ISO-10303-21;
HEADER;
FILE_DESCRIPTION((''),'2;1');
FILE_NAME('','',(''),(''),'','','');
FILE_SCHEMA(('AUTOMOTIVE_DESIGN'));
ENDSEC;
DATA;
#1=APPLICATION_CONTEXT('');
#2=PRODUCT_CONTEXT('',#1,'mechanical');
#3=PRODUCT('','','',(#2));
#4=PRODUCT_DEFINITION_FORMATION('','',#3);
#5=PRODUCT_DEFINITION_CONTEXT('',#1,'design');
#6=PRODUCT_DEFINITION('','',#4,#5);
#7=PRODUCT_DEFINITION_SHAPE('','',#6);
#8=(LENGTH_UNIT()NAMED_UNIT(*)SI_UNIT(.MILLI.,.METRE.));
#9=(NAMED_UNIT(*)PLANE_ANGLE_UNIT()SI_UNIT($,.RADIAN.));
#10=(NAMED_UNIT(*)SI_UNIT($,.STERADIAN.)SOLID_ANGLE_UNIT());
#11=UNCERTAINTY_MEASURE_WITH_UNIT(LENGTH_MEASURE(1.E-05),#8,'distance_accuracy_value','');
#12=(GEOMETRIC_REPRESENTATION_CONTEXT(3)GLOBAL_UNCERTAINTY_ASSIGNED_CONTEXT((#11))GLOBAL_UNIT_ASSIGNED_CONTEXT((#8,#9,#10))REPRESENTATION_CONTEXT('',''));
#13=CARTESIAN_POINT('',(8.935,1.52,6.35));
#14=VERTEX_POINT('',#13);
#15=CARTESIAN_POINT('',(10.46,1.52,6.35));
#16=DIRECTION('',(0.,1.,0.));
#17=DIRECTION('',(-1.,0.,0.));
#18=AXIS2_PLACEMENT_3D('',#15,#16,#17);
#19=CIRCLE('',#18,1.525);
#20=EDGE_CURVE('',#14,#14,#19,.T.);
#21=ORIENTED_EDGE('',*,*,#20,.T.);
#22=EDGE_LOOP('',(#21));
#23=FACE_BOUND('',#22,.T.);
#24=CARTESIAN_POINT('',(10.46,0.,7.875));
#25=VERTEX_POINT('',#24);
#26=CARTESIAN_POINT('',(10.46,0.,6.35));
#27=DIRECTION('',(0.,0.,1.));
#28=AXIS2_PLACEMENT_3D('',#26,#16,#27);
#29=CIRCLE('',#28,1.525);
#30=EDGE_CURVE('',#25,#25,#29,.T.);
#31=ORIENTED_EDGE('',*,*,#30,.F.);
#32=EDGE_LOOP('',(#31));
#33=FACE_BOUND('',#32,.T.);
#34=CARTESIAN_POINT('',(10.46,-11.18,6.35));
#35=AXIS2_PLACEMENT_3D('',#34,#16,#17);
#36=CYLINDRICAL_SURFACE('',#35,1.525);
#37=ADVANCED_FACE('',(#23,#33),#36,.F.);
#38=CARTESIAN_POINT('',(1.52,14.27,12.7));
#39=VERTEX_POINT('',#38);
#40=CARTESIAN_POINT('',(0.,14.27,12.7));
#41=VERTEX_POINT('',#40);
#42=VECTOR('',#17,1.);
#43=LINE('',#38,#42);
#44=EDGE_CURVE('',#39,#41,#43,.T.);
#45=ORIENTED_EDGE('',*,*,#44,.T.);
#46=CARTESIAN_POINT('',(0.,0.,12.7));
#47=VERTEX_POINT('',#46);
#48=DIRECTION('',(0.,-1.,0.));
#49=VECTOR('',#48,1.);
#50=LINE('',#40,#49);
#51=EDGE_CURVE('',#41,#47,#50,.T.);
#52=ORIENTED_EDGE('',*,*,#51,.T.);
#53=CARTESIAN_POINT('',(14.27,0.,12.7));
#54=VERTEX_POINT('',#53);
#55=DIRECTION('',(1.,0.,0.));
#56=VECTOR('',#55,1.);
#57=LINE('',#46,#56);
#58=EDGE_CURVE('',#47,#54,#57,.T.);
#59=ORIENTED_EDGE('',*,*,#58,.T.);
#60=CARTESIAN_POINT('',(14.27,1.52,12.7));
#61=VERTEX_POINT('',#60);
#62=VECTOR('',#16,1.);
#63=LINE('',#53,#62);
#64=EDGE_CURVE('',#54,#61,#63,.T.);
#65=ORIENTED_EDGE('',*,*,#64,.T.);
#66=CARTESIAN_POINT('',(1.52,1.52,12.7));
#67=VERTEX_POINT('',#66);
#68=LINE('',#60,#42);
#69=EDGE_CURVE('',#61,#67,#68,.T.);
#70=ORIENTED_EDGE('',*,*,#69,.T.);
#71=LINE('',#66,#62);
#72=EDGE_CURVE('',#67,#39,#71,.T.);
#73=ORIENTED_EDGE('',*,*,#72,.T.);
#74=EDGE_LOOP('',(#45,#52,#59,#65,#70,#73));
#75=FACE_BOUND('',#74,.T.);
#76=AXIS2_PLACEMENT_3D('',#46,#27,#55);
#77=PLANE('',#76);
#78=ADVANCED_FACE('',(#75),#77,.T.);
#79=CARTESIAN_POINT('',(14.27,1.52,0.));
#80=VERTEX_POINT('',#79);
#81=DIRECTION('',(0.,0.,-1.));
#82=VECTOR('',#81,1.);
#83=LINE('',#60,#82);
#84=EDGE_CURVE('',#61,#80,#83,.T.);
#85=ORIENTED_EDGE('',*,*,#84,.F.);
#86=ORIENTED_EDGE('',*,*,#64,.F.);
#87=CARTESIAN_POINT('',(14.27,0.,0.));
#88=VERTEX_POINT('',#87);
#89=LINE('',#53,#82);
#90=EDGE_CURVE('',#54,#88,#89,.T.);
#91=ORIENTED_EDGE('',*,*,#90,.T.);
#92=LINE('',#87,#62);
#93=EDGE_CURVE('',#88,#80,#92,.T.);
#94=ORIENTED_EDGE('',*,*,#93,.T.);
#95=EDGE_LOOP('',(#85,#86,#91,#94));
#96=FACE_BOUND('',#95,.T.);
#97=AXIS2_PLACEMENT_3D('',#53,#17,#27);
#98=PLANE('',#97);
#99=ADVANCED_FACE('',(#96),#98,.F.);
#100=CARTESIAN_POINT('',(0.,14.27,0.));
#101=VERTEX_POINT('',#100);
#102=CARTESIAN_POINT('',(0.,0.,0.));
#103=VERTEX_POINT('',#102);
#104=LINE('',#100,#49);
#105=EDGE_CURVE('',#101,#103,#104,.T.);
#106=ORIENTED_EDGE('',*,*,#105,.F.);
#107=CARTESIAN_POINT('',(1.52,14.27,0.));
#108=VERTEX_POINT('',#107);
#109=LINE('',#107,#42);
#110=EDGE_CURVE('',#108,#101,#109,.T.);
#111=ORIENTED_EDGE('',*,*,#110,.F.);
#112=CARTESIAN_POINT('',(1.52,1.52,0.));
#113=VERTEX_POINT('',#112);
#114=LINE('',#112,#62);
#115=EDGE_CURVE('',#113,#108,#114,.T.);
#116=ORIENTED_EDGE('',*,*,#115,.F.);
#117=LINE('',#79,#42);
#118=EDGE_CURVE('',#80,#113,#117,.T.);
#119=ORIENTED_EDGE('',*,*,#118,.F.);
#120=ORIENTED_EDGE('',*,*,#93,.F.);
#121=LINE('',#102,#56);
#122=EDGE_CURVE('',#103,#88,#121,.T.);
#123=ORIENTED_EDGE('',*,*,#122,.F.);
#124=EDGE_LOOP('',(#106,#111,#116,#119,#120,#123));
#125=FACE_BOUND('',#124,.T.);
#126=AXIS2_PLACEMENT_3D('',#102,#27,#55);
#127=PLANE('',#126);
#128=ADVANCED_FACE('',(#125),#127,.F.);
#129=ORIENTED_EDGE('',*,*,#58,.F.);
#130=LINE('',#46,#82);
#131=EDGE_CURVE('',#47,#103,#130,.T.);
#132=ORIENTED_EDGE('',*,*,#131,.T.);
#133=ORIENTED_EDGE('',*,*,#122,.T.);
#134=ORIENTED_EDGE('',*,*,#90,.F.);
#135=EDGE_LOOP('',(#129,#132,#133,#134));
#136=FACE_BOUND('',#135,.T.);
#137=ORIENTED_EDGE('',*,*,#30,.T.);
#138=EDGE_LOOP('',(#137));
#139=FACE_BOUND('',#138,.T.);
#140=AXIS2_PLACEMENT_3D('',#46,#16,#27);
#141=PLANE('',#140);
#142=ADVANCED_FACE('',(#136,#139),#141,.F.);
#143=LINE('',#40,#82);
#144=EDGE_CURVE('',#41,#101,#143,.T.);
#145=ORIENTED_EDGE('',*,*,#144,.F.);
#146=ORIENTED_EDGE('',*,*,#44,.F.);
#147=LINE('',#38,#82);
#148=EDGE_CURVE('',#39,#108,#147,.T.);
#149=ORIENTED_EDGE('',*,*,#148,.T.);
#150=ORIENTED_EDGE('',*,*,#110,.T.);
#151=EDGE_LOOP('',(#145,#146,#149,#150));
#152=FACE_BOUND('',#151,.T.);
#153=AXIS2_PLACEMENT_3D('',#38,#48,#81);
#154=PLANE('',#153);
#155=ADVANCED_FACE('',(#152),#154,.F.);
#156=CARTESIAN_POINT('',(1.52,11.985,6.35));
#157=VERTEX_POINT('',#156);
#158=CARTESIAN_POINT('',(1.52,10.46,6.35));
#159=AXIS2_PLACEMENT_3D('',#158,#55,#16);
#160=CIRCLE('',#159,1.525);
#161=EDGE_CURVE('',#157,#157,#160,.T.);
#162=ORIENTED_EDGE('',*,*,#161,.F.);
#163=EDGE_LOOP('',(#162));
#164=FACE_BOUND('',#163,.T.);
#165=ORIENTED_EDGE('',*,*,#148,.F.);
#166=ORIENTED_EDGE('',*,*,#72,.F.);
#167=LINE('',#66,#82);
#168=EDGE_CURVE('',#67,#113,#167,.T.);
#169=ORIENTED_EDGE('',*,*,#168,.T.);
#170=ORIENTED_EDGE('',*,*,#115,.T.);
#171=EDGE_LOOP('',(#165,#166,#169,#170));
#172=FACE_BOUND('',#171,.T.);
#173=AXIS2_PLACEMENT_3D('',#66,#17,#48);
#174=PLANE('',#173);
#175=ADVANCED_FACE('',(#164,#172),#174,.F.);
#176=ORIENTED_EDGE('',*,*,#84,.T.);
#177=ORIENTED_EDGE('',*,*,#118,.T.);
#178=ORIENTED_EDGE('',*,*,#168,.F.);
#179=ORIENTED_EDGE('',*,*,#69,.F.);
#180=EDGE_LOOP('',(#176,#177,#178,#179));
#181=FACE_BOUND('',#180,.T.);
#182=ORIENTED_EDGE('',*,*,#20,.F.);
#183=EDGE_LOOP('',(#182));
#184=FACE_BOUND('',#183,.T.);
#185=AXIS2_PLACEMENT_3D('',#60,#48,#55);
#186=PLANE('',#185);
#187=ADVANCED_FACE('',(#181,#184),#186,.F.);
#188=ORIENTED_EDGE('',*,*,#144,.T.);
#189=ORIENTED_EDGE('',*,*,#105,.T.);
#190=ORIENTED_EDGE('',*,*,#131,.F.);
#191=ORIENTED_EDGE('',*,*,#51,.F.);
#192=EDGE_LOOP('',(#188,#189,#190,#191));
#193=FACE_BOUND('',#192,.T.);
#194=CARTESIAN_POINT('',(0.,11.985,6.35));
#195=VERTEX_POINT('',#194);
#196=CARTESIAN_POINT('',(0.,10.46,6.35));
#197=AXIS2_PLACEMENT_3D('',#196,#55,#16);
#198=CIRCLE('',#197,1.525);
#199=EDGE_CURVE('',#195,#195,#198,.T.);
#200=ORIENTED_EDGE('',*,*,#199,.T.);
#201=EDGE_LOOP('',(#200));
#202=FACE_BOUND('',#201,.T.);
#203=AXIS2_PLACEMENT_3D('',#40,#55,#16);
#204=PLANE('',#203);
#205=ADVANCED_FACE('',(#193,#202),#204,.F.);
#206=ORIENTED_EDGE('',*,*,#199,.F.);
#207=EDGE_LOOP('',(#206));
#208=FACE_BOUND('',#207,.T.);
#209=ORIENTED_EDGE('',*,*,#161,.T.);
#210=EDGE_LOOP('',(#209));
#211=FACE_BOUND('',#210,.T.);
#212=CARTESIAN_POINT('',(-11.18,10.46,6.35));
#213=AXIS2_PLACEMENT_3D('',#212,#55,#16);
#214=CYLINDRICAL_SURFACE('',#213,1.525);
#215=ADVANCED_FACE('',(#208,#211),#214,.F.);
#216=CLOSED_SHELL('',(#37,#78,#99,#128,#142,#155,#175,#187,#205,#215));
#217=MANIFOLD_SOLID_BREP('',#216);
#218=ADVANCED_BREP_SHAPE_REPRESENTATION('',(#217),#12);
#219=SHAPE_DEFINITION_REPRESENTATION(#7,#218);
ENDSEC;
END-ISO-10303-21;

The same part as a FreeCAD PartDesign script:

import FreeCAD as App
import Part
import Sketcher
from FreeCAD import Vector
Q = App.Units.Quantity

doc = App.newDocument("Part")
body = doc.addObject("PartDesign::Body", "Body")

# Sketch on XY plane
sketch1 = body.newObject("Sketcher::SketchObject", "Sketch")
sketch1.AttachmentSupport = (doc.getObject("XY_Plane"), [""])
sketch1.MapMode = "FlatFace"
sketch1.addGeometry(Part.LineSegment(Vector(0, 0, 0), Vector(14.3, 0, 0)), False)
sketch1.addGeometry(Part.LineSegment(Vector(14.3, 0, 0), Vector(14.3, 1.5, 0)), False)
sketch1.addGeometry(Part.LineSegment(Vector(14.3, 1.5, 0), Vector(1.5, 1.5, 0)), False)
sketch1.addGeometry(Part.LineSegment(Vector(1.5, 1.5, 0), Vector(1.5, 14.3, 0)), False)
sketch1.addGeometry(Part.LineSegment(Vector(1.5, 14.3, 0), Vector(0, 14.3, 0)), False)
sketch1.addGeometry(Part.LineSegment(Vector(0, 14.3, 0), Vector(0, 0, 0)), False)
sketch1.addConstraint(Sketcher.Constraint("Coincident", 0, 2, 1, 1))
sketch1.addConstraint(Sketcher.Constraint("Coincident", 1, 2, 2, 1))
sketch1.addConstraint(Sketcher.Constraint("Coincident", 2, 2, 3, 1))
sketch1.addConstraint(Sketcher.Constraint("Coincident", 3, 2, 4, 1))
sketch1.addConstraint(Sketcher.Constraint("Coincident", 4, 2, 5, 1))
sketch1.addConstraint(Sketcher.Constraint("Coincident", 5, 2, 0, 1))
sketch1.addConstraint(Sketcher.Constraint("Horizontal", 0))
sketch1.addConstraint(Sketcher.Constraint("Vertical", 1))
sketch1.addConstraint(Sketcher.Constraint("Horizontal", 2))
sketch1.addConstraint(Sketcher.Constraint("Vertical", 3))
sketch1.addConstraint(Sketcher.Constraint("Horizontal", 4))
sketch1.addConstraint(Sketcher.Constraint("Vertical", 5))
sketch1.addConstraint(Sketcher.Constraint("Coincident", 5, 2, -1, 1))
sketch1.addConstraint(Sketcher.Constraint("Equal", 4, 1))
sketch1.addConstraint(Sketcher.Constraint("Equal", 2, 3))
sketch1.addConstraint(Sketcher.Constraint("DistanceX", 0, 1, 0, 2, 14.27))
sketch1.addConstraint(Sketcher.Constraint("DistanceX", 2, 2, 2, 1, 12.75))
pad1 = body.newObject("PartDesign::Pad", "Pad")
pad1.Profile = sketch1
pad1.Length = Q("0.5 in")

# Sketch on YZ plane
sketch2 = body.newObject("Sketcher::SketchObject", "Sketch001")
sketch2.AttachmentSupport = (doc.getObject("YZ_Plane"), [""])
sketch2.MapMode = "FlatFace"
sketch2.AttachmentOffset = App.Placement(Vector(0, 0, 1.52), App.Rotation())
sketch2.addGeometry(Part.Circle(Vector(10.5, 6.3, 0), Vector(0, 0, 1), 1.5), False)
sketch2.addConstraint(Sketcher.Constraint("Diameter", 0, 3.05))
sketch2.addConstraint(Sketcher.Constraint("DistanceY", -1, 1, 0, 3, Q("0.25 in")))
sketch2.addConstraint(Sketcher.Constraint("DistanceX", -1, 1, 0, 3, 10.46))
pocket1 = body.newObject("PartDesign::Pocket", "Pocket")
pocket1.Profile = sketch2
pocket1.Length = Q("0.5 in")

# Sketch on XZ plane
sketch3 = body.newObject("Sketcher::SketchObject", "Sketch002")
sketch3.AttachmentSupport = (doc.getObject("XZ_Plane"), [""])
sketch3.MapMode = "FlatFace"
sketch3.AttachmentOffset = App.Placement(Vector(0, 0, -1.52), App.Rotation())
sketch3.addGeometry(Part.Circle(Vector(10.5, 6.3, 0), Vector(0, 0, 1), 1.5), False)
sketch3.addConstraint(Sketcher.Constraint("Diameter", 0, 3.05))
sketch3.addConstraint(Sketcher.Constraint("DistanceY", -1, 1, 0, 3, Q("0.25 in")))
sketch3.addConstraint(Sketcher.Constraint("DistanceX", -1, 1, 0, 3, 10.46))
pocket2 = body.newObject("PartDesign::Pocket", "Pocket001")
pocket2.Profile = sketch3
pocket2.Length = Q("0.5 in")
pocket2.Reversed = True

doc.recompute()
